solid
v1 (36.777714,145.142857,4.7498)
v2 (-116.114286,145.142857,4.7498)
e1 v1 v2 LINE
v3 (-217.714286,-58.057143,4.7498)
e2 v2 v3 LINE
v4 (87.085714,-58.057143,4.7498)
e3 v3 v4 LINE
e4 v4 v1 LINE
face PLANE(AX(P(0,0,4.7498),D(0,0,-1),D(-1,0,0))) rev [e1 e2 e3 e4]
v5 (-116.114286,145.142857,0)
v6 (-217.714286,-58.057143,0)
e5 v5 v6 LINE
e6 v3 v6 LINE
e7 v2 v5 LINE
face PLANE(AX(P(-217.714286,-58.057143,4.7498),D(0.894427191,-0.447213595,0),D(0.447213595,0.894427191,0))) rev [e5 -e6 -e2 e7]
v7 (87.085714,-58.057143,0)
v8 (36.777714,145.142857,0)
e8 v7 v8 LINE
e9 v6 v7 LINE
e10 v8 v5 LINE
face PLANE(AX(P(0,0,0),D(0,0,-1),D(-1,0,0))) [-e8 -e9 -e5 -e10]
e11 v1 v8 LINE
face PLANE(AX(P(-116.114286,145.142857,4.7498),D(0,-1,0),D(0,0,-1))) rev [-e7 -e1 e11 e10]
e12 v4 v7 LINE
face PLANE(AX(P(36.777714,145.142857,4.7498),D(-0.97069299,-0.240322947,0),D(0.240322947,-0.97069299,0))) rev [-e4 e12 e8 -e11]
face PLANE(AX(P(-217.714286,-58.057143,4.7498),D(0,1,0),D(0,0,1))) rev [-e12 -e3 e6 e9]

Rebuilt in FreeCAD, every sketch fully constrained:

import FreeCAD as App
import Part
import Sketcher

V = App.Vector
Q = App.Units.Quantity


def add_polygon(sketch, points):
    """Adds a closed chain of lines whose ends are joined by coincident constraints."""
    first, n = sketch.GeometryCount, len(points)
    for a, b in zip(points, points[1:] + points[:1]):
        sketch.addGeometry(Part.LineSegment(App.Vector(*a, 0), App.Vector(*b, 0)), False)
    for i in range(n):
        sketch.addConstraint(Sketcher.Constraint("Coincident", first + i, 2, first + (i + 1) % n, 1))

doc = App.newDocument("Part")
body = doc.addObject("PartDesign::Body", "Body")

sketch1 = body.newObject("Sketcher::SketchObject", "Sketch")
sketch1.AttachmentSupport = (doc.getObject("XY_Plane"), [""])
sketch1.MapMode = "FlatFace"
add_polygon(sketch1, [(-218, -58), (87, -58), (37, 145), (-116, 145)])
sketch1.addConstraint(Sketcher.Constraint("Horizontal", 0))
sketch1.addConstraint(Sketcher.Constraint("Horizontal", 2))
sketch1.addConstraint(Sketcher.Constraint("DistanceX", 0, 1, 0, 2, Q("12 in")))
sketch1.addConstraint(Sketcher.Constraint("DistanceY", 0, 2, 1, 2, Q("8 in")))
sketch1.addConstraint(Sketcher.Constraint("DistanceX", 2, 2, 0, 2, Q("8 in")))
sketch1.addConstraint(Sketcher.Constraint("DistanceX", 2, 2, 2, 1, Q("152.892 mm")))
sketch1.addConstraint(Sketcher.Constraint("DistanceX", -1, 1, 0, 2, Q("87.085714 mm")))
sketch1.addConstraint(Sketcher.Constraint("DistanceY", 0, 2, -1, 1, Q("58.057143 mm")))
pad1 = body.newObject("PartDesign::Pad", "Pad")
pad1.Profile = sketch1
pad1.Length = Q("0.187 in")

doc.recompute()
